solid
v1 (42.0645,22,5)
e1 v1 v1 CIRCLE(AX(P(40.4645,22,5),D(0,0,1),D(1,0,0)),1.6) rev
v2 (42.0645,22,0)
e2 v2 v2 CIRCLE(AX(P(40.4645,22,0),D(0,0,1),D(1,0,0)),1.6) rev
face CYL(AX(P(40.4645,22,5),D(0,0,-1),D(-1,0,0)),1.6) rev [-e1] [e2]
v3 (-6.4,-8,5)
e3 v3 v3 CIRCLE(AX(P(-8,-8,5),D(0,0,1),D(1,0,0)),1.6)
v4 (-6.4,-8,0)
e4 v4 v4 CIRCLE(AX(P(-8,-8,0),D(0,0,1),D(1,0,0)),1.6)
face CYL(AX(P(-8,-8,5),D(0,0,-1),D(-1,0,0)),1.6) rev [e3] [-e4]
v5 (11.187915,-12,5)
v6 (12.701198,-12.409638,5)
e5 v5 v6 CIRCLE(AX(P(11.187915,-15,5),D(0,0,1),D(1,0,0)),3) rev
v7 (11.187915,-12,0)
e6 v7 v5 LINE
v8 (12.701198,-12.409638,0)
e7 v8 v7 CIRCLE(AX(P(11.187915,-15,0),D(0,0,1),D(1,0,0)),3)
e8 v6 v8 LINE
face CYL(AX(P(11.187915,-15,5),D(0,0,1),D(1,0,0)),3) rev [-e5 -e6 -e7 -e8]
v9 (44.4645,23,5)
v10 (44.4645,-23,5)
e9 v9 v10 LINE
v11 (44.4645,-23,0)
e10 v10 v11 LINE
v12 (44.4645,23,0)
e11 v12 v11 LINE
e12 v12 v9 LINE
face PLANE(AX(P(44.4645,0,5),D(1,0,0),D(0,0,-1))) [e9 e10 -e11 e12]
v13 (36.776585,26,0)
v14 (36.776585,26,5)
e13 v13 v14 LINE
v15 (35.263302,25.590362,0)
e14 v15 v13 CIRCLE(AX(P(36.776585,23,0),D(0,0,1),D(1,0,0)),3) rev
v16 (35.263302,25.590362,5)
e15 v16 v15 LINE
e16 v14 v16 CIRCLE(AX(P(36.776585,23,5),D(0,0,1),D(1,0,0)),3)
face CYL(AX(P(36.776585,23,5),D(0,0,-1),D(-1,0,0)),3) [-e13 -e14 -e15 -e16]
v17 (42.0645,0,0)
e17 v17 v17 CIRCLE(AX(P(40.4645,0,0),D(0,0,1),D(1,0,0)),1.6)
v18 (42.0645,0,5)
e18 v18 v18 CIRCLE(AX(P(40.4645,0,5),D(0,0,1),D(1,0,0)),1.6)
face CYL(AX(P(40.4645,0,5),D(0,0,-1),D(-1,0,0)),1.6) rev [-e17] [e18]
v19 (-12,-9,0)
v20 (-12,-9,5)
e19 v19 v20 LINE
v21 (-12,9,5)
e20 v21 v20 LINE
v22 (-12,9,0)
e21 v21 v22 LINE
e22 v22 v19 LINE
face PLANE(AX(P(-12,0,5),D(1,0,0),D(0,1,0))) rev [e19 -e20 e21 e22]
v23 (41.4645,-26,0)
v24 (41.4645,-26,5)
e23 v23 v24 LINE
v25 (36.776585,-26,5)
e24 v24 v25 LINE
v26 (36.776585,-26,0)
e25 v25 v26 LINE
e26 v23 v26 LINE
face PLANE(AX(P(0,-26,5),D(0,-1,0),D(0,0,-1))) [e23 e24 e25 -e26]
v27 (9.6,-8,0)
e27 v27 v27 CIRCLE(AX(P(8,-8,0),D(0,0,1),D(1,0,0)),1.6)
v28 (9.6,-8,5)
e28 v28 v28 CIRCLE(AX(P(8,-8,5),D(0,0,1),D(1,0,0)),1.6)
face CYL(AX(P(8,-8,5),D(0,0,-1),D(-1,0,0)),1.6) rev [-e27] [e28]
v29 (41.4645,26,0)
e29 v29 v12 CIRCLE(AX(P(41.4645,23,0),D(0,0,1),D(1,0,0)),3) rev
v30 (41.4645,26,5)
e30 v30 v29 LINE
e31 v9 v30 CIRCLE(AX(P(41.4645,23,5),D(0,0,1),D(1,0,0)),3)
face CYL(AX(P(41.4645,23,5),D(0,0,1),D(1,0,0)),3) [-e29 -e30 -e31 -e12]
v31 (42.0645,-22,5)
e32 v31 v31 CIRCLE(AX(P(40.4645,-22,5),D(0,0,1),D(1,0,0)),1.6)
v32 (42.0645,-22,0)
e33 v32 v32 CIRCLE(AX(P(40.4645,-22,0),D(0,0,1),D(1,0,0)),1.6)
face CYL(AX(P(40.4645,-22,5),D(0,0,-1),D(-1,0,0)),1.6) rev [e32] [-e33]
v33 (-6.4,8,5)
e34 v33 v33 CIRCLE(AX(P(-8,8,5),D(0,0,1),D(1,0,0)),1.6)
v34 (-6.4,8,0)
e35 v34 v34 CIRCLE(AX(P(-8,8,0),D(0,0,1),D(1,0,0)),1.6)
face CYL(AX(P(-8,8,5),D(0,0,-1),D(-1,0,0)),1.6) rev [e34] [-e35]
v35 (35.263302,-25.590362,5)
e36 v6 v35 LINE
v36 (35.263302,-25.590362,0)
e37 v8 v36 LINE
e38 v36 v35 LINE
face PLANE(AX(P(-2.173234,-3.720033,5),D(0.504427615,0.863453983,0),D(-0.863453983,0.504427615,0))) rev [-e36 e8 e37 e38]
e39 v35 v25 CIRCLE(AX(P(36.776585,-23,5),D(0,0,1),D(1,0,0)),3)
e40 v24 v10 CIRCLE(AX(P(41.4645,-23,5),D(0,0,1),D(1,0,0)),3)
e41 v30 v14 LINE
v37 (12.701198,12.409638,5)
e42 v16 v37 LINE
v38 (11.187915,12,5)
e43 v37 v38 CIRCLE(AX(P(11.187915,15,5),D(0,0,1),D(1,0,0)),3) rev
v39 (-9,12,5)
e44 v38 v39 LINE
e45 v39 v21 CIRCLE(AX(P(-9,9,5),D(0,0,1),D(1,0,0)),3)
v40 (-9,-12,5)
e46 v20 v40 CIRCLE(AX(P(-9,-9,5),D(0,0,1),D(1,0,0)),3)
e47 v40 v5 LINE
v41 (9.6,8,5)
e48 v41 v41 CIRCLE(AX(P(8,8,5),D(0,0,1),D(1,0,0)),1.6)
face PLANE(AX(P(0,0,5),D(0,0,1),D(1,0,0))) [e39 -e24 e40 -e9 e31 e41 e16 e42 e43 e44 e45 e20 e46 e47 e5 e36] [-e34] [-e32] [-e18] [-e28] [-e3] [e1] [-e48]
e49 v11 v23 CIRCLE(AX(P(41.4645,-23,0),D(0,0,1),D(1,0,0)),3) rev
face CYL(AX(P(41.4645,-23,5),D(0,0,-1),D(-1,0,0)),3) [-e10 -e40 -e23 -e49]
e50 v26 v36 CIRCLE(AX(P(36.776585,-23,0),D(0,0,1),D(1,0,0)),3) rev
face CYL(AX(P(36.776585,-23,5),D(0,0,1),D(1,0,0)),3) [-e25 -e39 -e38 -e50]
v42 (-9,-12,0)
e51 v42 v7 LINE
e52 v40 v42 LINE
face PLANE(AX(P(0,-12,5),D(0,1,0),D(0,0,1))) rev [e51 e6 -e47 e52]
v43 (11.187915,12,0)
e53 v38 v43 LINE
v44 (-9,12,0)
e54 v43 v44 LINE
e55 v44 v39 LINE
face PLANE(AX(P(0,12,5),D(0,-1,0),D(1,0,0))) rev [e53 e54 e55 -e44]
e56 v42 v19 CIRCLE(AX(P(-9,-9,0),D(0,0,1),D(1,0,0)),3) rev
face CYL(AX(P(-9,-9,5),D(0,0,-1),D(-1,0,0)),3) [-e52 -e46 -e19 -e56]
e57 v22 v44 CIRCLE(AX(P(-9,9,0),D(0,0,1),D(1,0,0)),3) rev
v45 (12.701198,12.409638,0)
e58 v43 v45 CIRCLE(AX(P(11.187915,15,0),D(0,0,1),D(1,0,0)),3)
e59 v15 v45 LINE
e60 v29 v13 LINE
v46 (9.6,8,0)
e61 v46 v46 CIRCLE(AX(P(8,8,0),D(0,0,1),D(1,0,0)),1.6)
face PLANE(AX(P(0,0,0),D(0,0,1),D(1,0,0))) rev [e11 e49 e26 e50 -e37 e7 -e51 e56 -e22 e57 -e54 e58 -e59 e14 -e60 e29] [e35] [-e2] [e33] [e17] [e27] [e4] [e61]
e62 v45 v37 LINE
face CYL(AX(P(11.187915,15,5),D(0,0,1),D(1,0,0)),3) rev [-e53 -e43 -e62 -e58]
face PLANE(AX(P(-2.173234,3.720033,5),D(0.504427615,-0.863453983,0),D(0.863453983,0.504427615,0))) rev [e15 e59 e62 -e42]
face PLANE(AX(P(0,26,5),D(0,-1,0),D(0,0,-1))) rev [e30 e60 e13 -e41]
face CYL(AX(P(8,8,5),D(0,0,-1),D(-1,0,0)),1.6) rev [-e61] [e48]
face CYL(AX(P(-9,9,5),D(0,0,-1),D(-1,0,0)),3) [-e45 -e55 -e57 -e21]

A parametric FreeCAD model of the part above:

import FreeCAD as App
import Part
import Sketcher
from FreeCAD import Vector


def edges_at(feature, points):
    """Names of the edges that pass closest to the given points."""
    edges = feature.Shape.Edges
    near = lambda p: min(range(len(edges)), key=lambda i: edges[i].distToShape(Part.Vertex(*p))[0])
    return sorted({f"Edge{near(p) + 1}" for p in points})

doc = App.newDocument("Part")
body = doc.addObject("PartDesign::Body", "Body")

# Sketch on XY plane
sketch1 = body.newObject("Sketcher::SketchObject", "Sketch")
sketch1.AttachmentSupport = (doc.getObject("XY_Plane"), [""])
sketch1.MapMode = "FlatFace"
sketch1.addGeometry([
    Part.LineSegment(Vector(44.5, -26, 0), Vector(44.5, 26, 0)),  # 0
    Part.LineSegment(Vector(44.5, 26, 0), Vector(36, 26, 0)),  # 1
    Part.LineSegment(Vector(36, 26, 0), Vector(12, 12, 0)),  # 2
    Part.LineSegment(Vector(12, 12, 0), Vector(-12, 12, 0)),  # 3
    Part.LineSegment(Vector(-12, 12, 0), Vector(-12, -12, 0)),  # 4
    Part.LineSegment(Vector(-12, -12, 0), Vector(12, -12, 0)),  # 5
    Part.LineSegment(Vector(12, -12, 0), Vector(36, -26, 0)),  # 6
    Part.LineSegment(Vector(36, -26, 0), Vector(44.5, -26, 0)),  # 7
    Part.Circle(Vector(-8, -8, 0), Vector(0, 0, 1), 1.6),  # 8
    Part.Circle(Vector(8, -8, 0), Vector(0, 0, 1), 1.6),  # 9
    Part.Circle(Vector(40.5, -22, 0), Vector(0, 0, 1), 1.6),  # 10
    Part.Circle(Vector(-8, 8, 0), Vector(0, 0, 1), 1.6),  # 11
    Part.Circle(Vector(8, 8, 0), Vector(0, 0, 1), 1.6),  # 12
    Part.Circle(Vector(40.5, 0, 0), Vector(0, 0, 1), 1.6),  # 13
    Part.Circle(Vector(40.5, 22, 0), Vector(0, 0, 1), 1.6),  # 14
], False)
sketch1.addConstraint([
    Sketcher.Constraint("Coincident", 0, 2, 1, 1),
    Sketcher.Constraint("Coincident", 1, 2, 2, 1),
    Sketcher.Constraint("Coincident", 2, 2, 3, 1),
    Sketcher.Constraint("Coincident", 3, 2, 4, 1),
    Sketcher.Constraint("Coincident", 4, 2, 5, 1),
    Sketcher.Constraint("Coincident", 5, 2, 6, 1),
    Sketcher.Constraint("Coincident", 6, 2, 7, 1),
    Sketcher.Constraint("Coincident", 7, 2, 0, 1),
    Sketcher.Constraint("Vertical", 0),
    Sketcher.Constraint("Horizontal", 1),
    Sketcher.Constraint("Horizontal", 3),
    Sketcher.Constraint("Vertical", 4),
    Sketcher.Constraint("Horizontal", 5),
    Sketcher.Constraint("Horizontal", 7),
    Sketcher.Constraint("Equal", 8, 9),
    Sketcher.Constraint("Equal", 9, 10),
    Sketcher.Constraint("Equal", 10, 11),
    Sketcher.Constraint("Equal", 11, 12),
    Sketcher.Constraint("Equal", 12, 13),
    Sketcher.Constraint("Equal", 13, 14),
    Sketcher.Constraint("Symmetric", 9, 3, 11, 3, -1, 1),
    Sketcher.Constraint("Symmetric", 8, 3, 12, 3, -1, 1),
    Sketcher.Constraint("Symmetric", 2, 2, 4, 2, -1, 1),
    Sketcher.Constraint("Symmetric", 8, 3, 9, 3, -2),
    Sketcher.Constraint("Symmetric", 10, 3, 14, 3, -1),
    Sketcher.Constraint("Symmetric", 1, 2, 6, 2, -1),
    Sketcher.Constraint("PointOnObject", 13, 3, -1),
    Sketcher.Constraint("Vertical", 10, 3, 13, 3),
    Sketcher.Constraint("Vertical", 2, 2, 5, 2),
    Sketcher.Constraint("Equal", 5, 4),
    Sketcher.Constraint("Diameter", 8, 3.2),
    Sketcher.Constraint("DistanceX", 3, 2, 3, 1, 24.0),
    Sketcher.Constraint("DistanceY", 0, 1, 0, 2, 52.0),
    Sketcher.Constraint("DistanceX", 1, 2, 1, 1, 8.5),
    Sketcher.Constraint("DistanceX", 8, 3, -1, 1, 8.0),
    Sketcher.Constraint("DistanceY", 8, 3, -1, 1, 8.0),
    Sketcher.Constraint("DistanceY", 10, 3, -1, 1, 22.0),
    Sketcher.Constraint("DistanceX", 14, 3, 0, 2, 4.0),
    Sketcher.Constraint("DistanceX", -1, 1, 10, 3, 40.4645),
])
pad1 = body.newObject("PartDesign::Pad", "Pad")
pad1.Profile = sketch1
pad1.Length = 5
doc.recompute()

fillet = body.newObject("PartDesign::Fillet", "Fillet")
fillet.Base = (pad1, edges_at(pad1, [
    (-12, -12, 2.5),
    (-12, 12, 2.5),
    (12, 12, 2.5),
    (35.965, 26, 2.5),
    (44.465, 26, 2.5),
    (44.465, -26, 2.5),
    (35.965, -26, 2.5),
    (12, -12, 2.5),
]))
fillet.Radius = 3

doc.recompute()
